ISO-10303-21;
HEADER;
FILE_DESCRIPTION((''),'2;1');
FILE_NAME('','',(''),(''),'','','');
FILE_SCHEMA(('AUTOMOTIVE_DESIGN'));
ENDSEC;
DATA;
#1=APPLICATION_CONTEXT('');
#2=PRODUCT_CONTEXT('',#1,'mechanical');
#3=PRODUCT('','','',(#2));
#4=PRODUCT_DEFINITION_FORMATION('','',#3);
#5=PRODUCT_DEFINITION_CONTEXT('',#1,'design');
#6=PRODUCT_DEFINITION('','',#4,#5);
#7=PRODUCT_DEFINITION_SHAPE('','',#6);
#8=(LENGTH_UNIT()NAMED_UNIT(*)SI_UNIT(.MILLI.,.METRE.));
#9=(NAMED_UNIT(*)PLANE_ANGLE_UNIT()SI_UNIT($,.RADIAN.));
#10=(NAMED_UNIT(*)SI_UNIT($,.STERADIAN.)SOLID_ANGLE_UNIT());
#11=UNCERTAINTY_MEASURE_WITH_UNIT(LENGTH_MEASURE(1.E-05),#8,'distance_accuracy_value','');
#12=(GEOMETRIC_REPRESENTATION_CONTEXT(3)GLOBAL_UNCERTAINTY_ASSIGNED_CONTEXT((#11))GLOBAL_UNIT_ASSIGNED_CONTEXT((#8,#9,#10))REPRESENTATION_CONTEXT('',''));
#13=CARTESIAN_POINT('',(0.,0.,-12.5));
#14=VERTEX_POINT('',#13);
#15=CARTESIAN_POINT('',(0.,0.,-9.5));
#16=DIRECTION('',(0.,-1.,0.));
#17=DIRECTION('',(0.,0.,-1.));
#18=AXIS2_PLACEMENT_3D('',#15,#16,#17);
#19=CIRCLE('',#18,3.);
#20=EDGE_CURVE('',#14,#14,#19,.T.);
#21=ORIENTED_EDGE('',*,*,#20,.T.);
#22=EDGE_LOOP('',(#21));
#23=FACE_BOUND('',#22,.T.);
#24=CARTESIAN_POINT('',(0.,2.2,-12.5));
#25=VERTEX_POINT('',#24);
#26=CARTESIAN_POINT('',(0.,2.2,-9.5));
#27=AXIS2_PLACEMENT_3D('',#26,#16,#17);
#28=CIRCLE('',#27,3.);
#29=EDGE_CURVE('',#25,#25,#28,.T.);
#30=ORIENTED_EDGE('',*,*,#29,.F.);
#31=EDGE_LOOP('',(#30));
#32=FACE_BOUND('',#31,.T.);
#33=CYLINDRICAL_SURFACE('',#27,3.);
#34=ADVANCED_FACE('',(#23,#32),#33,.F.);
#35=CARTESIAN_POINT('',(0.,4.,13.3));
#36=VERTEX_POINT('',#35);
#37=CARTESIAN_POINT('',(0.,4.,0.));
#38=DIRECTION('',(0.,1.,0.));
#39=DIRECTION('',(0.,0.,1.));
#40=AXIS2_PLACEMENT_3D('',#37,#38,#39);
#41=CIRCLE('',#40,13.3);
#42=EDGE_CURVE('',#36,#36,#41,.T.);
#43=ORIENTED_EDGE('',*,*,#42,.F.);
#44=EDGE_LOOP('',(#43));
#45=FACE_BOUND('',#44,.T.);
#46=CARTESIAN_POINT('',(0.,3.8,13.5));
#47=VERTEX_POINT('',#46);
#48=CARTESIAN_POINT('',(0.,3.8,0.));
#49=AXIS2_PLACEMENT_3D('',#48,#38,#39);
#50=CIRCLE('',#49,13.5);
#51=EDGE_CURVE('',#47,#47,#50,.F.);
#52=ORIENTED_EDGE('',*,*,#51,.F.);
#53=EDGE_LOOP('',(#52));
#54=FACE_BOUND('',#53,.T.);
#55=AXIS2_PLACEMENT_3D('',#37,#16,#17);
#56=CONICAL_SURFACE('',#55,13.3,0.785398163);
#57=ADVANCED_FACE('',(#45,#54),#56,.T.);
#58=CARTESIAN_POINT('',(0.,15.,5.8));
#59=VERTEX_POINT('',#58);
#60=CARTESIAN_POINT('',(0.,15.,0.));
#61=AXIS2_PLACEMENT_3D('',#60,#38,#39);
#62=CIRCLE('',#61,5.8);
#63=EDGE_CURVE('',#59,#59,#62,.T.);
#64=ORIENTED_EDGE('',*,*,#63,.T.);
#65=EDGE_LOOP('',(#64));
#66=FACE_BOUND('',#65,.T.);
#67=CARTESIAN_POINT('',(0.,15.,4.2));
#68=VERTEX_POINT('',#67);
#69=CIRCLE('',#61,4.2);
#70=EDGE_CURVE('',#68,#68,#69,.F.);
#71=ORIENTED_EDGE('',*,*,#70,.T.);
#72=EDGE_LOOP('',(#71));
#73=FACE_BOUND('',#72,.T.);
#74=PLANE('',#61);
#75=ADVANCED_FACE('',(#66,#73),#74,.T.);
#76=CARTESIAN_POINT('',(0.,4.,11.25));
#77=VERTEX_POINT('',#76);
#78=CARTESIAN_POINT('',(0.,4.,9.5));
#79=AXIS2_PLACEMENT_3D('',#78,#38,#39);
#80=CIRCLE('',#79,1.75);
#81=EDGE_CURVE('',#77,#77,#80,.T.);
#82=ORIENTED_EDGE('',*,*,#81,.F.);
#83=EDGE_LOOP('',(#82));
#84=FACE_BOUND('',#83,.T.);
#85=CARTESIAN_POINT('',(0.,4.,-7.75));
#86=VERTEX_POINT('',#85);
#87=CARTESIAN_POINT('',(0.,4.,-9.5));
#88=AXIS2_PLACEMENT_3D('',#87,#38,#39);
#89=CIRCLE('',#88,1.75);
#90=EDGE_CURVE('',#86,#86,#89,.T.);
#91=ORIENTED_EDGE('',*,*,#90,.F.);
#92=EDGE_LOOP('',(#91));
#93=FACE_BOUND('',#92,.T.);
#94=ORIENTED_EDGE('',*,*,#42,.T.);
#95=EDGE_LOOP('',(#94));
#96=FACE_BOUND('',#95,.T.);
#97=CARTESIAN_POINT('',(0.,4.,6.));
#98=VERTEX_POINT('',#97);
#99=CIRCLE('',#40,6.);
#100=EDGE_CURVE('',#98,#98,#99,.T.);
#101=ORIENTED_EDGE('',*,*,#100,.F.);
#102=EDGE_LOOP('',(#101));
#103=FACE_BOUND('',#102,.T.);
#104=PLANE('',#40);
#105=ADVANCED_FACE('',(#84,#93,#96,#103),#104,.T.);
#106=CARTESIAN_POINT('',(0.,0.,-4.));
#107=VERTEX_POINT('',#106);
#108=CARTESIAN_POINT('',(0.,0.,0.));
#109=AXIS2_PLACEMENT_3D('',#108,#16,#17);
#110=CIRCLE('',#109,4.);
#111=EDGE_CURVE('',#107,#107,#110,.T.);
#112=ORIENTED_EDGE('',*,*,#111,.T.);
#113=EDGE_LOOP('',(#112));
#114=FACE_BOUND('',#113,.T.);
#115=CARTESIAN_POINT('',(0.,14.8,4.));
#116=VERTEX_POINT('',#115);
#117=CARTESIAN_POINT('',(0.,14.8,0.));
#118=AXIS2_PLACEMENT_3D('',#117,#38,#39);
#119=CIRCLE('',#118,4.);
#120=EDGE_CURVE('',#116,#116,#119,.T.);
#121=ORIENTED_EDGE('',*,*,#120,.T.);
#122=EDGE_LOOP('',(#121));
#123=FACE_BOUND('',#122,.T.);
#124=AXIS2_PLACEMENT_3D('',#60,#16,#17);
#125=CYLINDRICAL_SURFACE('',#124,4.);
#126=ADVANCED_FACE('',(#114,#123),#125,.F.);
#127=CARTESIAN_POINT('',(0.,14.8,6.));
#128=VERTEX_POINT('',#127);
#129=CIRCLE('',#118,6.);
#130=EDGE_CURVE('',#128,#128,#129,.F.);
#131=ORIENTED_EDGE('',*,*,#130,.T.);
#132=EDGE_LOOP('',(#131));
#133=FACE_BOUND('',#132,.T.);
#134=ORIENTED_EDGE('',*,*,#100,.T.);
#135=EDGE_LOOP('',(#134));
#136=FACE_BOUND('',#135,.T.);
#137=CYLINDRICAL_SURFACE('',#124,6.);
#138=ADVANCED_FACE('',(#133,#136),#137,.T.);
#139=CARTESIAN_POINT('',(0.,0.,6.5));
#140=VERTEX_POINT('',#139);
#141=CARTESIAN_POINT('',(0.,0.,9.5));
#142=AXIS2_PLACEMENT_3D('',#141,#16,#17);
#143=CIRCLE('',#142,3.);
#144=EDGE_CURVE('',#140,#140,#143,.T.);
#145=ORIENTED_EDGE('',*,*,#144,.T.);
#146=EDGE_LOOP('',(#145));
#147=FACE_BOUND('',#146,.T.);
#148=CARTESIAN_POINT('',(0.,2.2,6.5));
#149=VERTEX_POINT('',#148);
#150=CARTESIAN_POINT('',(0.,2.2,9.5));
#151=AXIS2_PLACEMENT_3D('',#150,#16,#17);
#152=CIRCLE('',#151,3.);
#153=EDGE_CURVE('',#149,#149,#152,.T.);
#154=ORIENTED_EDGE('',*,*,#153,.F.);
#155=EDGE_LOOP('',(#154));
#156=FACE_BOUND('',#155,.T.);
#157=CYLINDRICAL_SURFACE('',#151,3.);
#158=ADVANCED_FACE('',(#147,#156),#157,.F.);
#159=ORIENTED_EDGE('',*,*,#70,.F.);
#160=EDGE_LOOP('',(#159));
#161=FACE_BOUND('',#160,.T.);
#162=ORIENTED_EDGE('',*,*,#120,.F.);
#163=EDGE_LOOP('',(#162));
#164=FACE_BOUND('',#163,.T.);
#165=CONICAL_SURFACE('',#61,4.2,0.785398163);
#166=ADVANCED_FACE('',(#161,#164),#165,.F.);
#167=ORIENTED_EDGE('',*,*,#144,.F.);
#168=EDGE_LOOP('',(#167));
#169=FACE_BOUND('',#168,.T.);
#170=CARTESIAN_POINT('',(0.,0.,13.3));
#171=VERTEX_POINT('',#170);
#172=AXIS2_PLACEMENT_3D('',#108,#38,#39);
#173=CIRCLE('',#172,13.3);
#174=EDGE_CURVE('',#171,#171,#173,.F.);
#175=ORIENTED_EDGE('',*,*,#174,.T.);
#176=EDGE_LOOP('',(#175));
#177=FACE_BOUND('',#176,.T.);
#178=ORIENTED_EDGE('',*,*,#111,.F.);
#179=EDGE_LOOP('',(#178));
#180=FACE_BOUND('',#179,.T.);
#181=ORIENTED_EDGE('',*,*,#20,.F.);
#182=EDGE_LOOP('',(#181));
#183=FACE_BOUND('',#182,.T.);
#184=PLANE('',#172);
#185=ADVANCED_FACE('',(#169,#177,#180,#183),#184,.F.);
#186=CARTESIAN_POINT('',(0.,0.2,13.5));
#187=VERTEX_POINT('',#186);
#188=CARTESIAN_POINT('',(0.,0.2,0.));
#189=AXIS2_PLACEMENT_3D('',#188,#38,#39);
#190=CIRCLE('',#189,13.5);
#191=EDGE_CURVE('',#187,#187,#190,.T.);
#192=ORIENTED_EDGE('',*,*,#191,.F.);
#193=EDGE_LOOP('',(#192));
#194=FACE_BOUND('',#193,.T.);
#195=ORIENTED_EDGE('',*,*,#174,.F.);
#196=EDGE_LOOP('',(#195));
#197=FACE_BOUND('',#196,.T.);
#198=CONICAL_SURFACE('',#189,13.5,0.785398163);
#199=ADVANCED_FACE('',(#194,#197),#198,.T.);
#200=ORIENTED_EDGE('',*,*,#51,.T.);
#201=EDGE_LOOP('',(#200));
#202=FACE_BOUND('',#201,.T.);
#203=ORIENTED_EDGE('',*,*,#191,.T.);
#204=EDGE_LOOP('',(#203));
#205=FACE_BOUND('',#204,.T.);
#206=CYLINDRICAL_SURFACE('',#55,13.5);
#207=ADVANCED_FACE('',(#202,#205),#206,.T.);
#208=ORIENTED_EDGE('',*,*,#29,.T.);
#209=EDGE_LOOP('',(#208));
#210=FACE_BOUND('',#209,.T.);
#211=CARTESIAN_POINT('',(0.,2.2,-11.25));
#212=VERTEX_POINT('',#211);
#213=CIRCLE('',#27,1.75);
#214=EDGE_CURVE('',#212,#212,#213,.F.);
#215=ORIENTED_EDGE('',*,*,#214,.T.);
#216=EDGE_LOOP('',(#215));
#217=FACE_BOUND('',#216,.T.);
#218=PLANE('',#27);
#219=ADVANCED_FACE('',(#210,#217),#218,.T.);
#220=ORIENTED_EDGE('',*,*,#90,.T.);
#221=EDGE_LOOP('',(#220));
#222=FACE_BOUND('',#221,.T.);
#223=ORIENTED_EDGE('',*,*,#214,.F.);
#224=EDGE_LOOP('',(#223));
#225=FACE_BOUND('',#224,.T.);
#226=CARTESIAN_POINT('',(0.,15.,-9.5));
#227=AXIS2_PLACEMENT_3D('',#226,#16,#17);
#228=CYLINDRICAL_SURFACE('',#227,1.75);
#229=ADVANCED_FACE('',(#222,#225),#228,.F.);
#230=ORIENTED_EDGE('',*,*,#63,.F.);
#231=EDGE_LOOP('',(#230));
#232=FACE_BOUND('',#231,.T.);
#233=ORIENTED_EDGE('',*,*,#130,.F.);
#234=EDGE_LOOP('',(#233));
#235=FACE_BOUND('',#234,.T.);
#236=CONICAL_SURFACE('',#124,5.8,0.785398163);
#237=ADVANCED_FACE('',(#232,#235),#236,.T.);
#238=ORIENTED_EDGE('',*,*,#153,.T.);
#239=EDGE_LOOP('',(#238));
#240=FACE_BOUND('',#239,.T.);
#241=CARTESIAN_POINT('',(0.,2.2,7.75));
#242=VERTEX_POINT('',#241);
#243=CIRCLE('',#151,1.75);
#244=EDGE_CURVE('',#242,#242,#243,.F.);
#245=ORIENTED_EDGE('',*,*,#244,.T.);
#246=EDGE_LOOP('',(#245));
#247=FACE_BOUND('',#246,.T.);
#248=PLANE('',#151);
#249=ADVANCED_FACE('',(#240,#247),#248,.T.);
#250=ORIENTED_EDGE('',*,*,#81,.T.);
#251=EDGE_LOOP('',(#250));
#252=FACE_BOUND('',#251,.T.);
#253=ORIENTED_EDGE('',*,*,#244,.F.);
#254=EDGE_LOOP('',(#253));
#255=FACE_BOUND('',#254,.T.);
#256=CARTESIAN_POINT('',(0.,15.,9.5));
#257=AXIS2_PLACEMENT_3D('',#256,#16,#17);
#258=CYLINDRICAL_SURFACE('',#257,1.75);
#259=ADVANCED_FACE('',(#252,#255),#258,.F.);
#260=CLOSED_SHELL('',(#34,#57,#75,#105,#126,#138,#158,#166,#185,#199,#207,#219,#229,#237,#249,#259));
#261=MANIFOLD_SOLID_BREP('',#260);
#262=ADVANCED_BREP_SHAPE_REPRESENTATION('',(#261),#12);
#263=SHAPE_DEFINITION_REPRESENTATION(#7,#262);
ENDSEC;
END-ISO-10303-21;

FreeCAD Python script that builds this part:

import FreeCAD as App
import Part
import Sketcher


def edges_at(feature, points):
    """Names of the edges that pass closest to the given points."""
    edges = feature.Shape.Edges
    near = lambda p: min(range(len(edges)), key=lambda i: edges[i].distToShape(Part.Vertex(*p))[0])
    return sorted({f"Edge{near(p) + 1}" for p in points})

doc = App.newDocument("Part")
body = doc.addObject("PartDesign::Body", "Body")

sketch1 = body.newObject("Sketcher::SketchObject", "Sketch")
sketch1.AttachmentSupport = (doc.getObject("XZ_Plane"), [""])
sketch1.MapMode = "FlatFace"
sketch1.addGeometry(Part.Circle(App.Vector(0, 0, 0), App.Vector(0, 0, 1), 14), False)
sketch1.addConstraint([
    Sketcher.Constraint("Coincident", 0, 3, -1, 1),
    Sketcher.Constraint("Diameter", 0, 27.0),
])
pad1 = body.newObject("PartDesign::Pad", "Pad")
pad1.Profile = sketch1
pad1.Length = 4
pad1.Reversed = True

sketch2 = body.newObject("Sketcher::SketchObject", "Sketch001")
sketch2.AttachmentSupport = (doc.getObject("XZ_Plane"), [""])
sketch2.MapMode = "FlatFace"
sketch2.AttachmentOffset = App.Placement(App.Vector(0, 0, -4), App.Rotation())
sketch2.addGeometry(Part.Circle(App.Vector(0, 0, 0), App.Vector(0, 0, 1), 6), False)
sketch2.addConstraint([
    Sketcher.Constraint("Coincident", 0, 3, -1, 1),
    Sketcher.Constraint("Diameter", 0, 12.0),
])
pad2 = body.newObject("PartDesign::Pad", "Pad001")
pad2.Profile = sketch2
pad2.Length = 11
pad2.Reversed = True

sketch3 = body.newObject("Sketcher::SketchObject", "Sketch002")
sketch3.AttachmentSupport = (doc.getObject("XZ_Plane"), [""])
sketch3.MapMode = "FlatFace"
sketch3.addGeometry(Part.Circle(App.Vector(0, 0, 0), App.Vector(0, 0, 1), 4), False)
sketch3.addConstraint([
    Sketcher.Constraint("Coincident", 0, 3, -1, 1),
    Sketcher.Constraint("Diameter", 0, 8.0),
])
pocket1 = body.newObject("PartDesign::Pocket", "Pocket")
pocket1.Profile = sketch3
pocket1.Type = "ThroughAll"

sketch4 = body.newObject("Sketcher::SketchObject", "Sketch003")
sketch4.AttachmentSupport = (doc.getObject("XZ_Plane"), [""])
sketch4.MapMode = "FlatFace"
sketch4.addGeometry([
    Part.Circle(App.Vector(0, 9.5, 0), App.Vector(0, 0, 1), 1.8),
    Part.Circle(App.Vector(0, -9.5, 0), App.Vector(0, 0, 1), 1.8),
], False)
sketch4.addConstraint([
    Sketcher.Constraint("Equal", 0, 1),
    Sketcher.Constraint("Symmetric", 0, 3, 1, 3, -1, 1),
    Sketcher.Constraint("PointOnObject", 0, 3, -2),
    Sketcher.Constraint("Diameter", 0, 3.5),
    Sketcher.Constraint("DistanceY", 1, 3, 0, 3, 19.0),
])
pocket2 = body.newObject("PartDesign::Pocket", "Pocket001")
pocket2.Profile = sketch4
pocket2.Type = "ThroughAll"

sketch5 = body.newObject("Sketcher::SketchObject", "Sketch004")
sketch5.AttachmentSupport = (doc.getObject("XZ_Plane"), [""])
sketch5.MapMode = "FlatFace"
sketch5.addGeometry([
    Part.Circle(App.Vector(0, 9.5, 0), App.Vector(0, 0, 1), 3),
    Part.Circle(App.Vector(0, -9.5, 0), App.Vector(0, 0, 1), 3),
], False)
sketch5.addConstraint([
    Sketcher.Constraint("Equal", 0, 1),
    Sketcher.Constraint("Symmetric", 0, 3, 1, 3, -1, 1),
    Sketcher.Constraint("PointOnObject", 0, 3, -2),
    Sketcher.Constraint("Diameter", 0, 6.0),
    Sketcher.Constraint("DistanceY", 1, 3, 0, 3, 19.0),
])
pocket3 = body.newObject("PartDesign::Pocket", "Pocket002")
pocket3.Profile = sketch5
pocket3.Length = 2.2
doc.recompute()

chamfer = body.newObject("PartDesign::Chamfer", "Chamfer")
chamfer.Base = (pocket3, edges_at(pocket3, [
    (0, 15, 4),
    (0, 0, -13.5),
    (0, 4, -13.5),
    (0, 15, -6),
]))
chamfer.Size = 0.2

doc.recompute()
